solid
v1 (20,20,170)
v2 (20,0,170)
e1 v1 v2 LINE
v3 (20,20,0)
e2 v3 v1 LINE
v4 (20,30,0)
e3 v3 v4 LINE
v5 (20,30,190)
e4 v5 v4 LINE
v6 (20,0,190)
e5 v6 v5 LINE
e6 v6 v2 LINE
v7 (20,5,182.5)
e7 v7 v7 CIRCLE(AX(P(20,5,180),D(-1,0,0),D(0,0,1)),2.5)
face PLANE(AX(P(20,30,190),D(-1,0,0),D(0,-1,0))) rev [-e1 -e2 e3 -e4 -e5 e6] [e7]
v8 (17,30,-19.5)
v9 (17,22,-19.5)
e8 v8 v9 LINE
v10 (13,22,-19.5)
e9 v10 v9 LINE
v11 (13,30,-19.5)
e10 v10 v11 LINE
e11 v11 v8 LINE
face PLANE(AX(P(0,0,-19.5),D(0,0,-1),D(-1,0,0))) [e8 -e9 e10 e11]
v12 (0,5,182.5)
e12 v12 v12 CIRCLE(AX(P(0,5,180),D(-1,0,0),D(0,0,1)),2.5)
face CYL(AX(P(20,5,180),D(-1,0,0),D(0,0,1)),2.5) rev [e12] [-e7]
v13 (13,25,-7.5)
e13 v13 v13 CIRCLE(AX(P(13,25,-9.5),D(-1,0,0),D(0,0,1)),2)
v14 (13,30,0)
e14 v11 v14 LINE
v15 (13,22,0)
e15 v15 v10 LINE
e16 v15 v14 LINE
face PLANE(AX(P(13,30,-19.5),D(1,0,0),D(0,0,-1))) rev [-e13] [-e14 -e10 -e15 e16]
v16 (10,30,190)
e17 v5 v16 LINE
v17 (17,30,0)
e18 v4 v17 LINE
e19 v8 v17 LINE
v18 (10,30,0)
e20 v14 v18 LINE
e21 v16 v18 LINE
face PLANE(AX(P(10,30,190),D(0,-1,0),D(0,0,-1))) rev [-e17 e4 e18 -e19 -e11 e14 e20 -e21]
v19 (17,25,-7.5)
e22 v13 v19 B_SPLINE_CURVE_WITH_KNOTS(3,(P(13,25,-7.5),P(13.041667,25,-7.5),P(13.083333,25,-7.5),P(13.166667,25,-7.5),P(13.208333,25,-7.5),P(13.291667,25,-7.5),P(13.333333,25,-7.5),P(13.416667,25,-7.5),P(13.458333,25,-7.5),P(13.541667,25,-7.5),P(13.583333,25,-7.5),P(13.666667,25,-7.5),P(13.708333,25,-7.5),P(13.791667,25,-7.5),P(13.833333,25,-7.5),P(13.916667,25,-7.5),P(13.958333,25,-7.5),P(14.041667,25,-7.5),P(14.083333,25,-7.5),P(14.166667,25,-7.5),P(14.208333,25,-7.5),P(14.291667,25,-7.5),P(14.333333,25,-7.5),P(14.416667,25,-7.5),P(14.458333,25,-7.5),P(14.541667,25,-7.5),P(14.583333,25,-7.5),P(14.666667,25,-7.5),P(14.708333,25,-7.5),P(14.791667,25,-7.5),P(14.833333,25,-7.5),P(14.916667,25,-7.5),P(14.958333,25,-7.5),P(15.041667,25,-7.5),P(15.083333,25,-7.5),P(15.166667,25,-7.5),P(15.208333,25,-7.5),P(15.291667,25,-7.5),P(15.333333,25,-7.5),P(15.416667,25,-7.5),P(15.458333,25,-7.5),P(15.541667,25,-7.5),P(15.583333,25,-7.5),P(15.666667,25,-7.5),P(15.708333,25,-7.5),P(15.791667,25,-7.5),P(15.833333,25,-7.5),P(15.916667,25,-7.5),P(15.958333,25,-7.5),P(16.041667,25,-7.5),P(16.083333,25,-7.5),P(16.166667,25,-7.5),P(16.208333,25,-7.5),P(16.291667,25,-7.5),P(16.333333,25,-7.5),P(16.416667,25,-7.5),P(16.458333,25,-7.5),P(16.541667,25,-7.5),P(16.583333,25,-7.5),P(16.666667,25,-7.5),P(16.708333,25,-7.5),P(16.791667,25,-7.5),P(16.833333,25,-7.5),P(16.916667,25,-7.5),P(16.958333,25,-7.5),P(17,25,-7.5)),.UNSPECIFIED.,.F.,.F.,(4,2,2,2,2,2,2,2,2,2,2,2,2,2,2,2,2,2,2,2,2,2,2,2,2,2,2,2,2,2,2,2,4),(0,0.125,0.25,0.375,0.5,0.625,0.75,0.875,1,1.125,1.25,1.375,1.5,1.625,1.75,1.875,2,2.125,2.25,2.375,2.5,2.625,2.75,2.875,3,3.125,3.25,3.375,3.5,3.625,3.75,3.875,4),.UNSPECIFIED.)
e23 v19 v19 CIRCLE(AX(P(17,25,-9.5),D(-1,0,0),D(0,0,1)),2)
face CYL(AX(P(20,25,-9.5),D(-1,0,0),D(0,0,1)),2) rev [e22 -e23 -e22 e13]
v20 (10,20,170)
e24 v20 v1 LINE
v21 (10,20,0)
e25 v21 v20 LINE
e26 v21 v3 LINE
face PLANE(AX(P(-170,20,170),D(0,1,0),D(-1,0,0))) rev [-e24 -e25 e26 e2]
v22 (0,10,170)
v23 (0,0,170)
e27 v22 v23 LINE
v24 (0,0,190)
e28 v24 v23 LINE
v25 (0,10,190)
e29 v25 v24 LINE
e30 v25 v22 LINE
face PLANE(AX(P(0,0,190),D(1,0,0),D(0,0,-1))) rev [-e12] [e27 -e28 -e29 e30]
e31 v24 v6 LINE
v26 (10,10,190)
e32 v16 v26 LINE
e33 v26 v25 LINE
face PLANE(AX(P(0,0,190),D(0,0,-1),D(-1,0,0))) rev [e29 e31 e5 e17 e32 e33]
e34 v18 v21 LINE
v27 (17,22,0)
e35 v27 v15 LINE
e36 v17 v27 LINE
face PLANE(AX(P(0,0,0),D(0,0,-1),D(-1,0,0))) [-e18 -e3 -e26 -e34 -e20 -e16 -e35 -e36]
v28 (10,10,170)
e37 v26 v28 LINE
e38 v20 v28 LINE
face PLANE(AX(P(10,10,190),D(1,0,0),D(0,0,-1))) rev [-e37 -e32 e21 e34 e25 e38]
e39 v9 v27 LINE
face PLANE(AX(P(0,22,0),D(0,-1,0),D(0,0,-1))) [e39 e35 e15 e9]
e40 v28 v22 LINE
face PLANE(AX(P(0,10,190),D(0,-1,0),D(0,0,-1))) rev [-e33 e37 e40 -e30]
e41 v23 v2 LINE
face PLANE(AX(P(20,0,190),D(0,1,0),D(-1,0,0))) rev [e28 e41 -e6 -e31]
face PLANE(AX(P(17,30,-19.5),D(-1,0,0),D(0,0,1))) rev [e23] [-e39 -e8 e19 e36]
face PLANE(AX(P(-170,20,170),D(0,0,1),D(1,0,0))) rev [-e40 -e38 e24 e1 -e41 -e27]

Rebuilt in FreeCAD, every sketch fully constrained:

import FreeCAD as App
import Part
import Sketcher
from FreeCAD import Vector

doc = App.newDocument("Part")
body = doc.addObject("PartDesign::Body", "Body")

sketch1 = body.newObject("Sketcher::SketchObject", "Sketch")
sketch1.AttachmentSupport = (doc.getObject("XY_Plane"), [""])
sketch1.MapMode = "FlatFace"
sketch1.addGeometry([
    Part.LineSegment(Vector(0, 10, 0), Vector(0, 0, 0)),
    Part.LineSegment(Vector(0, 0, 0), Vector(20, 0, 0)),
    Part.LineSegment(Vector(20, 0, 0), Vector(20, 30, 0)),
    Part.LineSegment(Vector(20, 30, 0), Vector(10, 30, 0)),
    Part.LineSegment(Vector(10, 30, 0), Vector(10, 10, 0)),
    Part.LineSegment(Vector(10, 10, 0), Vector(0, 10, 0)),
], False)
sketch1.addConstraint([
    Sketcher.Constraint("Coincident", 0, 2, 1, 1),
    Sketcher.Constraint("Coincident", 1, 2, 2, 1),
    Sketcher.Constraint("Coincident", 2, 2, 3, 1),
    Sketcher.Constraint("Coincident", 3, 2, 4, 1),
    Sketcher.Constraint("Coincident", 4, 2, 5, 1),
    Sketcher.Constraint("Coincident", 5, 2, 0, 1),
    Sketcher.Constraint("Vertical", 0),
    Sketcher.Constraint("Horizontal", 1),
    Sketcher.Constraint("Vertical", 2),
    Sketcher.Constraint("Horizontal", 3),
    Sketcher.Constraint("Vertical", 4),
    Sketcher.Constraint("Horizontal", 5),
    Sketcher.Constraint("Coincident", 0, 2, -1, 1),
    Sketcher.Constraint("Equal", 3, 5),
    Sketcher.Constraint("Equal", 5, 0),
    Sketcher.Constraint("Equal", 1, 4),
    Sketcher.Constraint("DistanceX", 1, 1, 1, 2, 20.0),
])
pad1 = body.newObject("PartDesign::Pad", "Pad")
pad1.Profile = sketch1
pad1.Length = 190

sketch2 = body.newObject("Sketcher::SketchObject", "Sketch001")
sketch2.AttachmentSupport = (doc.getObject("YZ_Plane"), [""])
sketch2.MapMode = "FlatFace"
sketch2.AttachmentOffset = App.Placement(Vector(0, 0, 20), App.Rotation())
sketch2.addGeometry([
    Part.LineSegment(Vector(20, 170, 0), Vector(0, 170, 0)),
    Part.LineSegment(Vector(0, 170, 0), Vector(0, 0, 0)),
    Part.LineSegment(Vector(0, 0, 0), Vector(20, 0, 0)),
    Part.LineSegment(Vector(20, 0, 0), Vector(20, 170, 0)),
], False)
sketch2.addConstraint([
    Sketcher.Constraint("Coincident", 0, 2, 1, 1),
    Sketcher.Constraint("Coincident", 1, 2, 2, 1),
    Sketcher.Constraint("Coincident", 2, 2, 3, 1),
    Sketcher.Constraint("Coincident", 3, 2, 0, 1),
    Sketcher.Constraint("Horizontal", 0),
    Sketcher.Constraint("Vertical", 1),
    Sketcher.Constraint("Horizontal", 2),
    Sketcher.Constraint("Vertical", 3),
    Sketcher.Constraint("Coincident", 1, 2, -1, 1),
    Sketcher.Constraint("DistanceX", 0, 2, 0, 1, 20.0),
    Sketcher.Constraint("DistanceY", 1, 2, 1, 1, 170.0),
])
pocket1 = body.newObject("PartDesign::Pocket", "Pocket")
pocket1.Profile = sketch2
pocket1.Length = 190

sketch3 = body.newObject("Sketcher::SketchObject", "Sketch002")
sketch3.AttachmentSupport = (doc.getObject("XY_Plane"), [""])
sketch3.MapMode = "FlatFace"
sketch3.addGeometry([
    Part.LineSegment(Vector(17, 30, 0), Vector(17, 25, 0)),
    Part.LineSegment(Vector(17, 25, 0), Vector(13, 25, 0)),
    Part.LineSegment(Vector(13, 25, 0), Vector(13, 30, 0)),
    Part.LineSegment(Vector(13, 30, 0), Vector(17, 30, 0)),
], False)
sketch3.addConstraint([
    Sketcher.Constraint("Coincident", 0, 2, 1, 1),
    Sketcher.Constraint("Coincident", 1, 2, 2, 1),
    Sketcher.Constraint("Coincident", 2, 2, 3, 1),
    Sketcher.Constraint("Coincident", 3, 2, 0, 1),
    Sketcher.Constraint("Vertical", 0),
    Sketcher.Constraint("Horizontal", 1),
    Sketcher.Constraint("Vertical", 2),
    Sketcher.Constraint("Horizontal", 3),
    Sketcher.Constraint("DistanceX", 1, 2, 1, 1, 4.0),
    Sketcher.Constraint("DistanceY", 0, 2, 0, 1, 5.0),
    Sketcher.Constraint("DistanceX", -1, 1, 0, 2, 17.0),
    Sketcher.Constraint("DistanceY", -1, 1, 0, 2, 25.0),
])
pad2 = body.newObject("PartDesign::Pad", "Pad001")
pad2.Profile = sketch3
pad2.Length = 19.5
pad2.Reversed = True

sketch4 = body.newObject("Sketcher::SketchObject", "Sketch003")
sketch4.AttachmentSupport = (doc.getObject("YZ_Plane"), [""])
sketch4.MapMode = "FlatFace"
sketch4.addGeometry(Part.Circle(Vector(5, 180, 0), Vector(0, 0, 1), 2.8), False)
sketch4.addConstraint([
    Sketcher.Constraint("Diameter", 0, 5.5),
    Sketcher.Constraint("DistanceX", -1, 1, 0, 3, 5.0),
    Sketcher.Constraint("DistanceY", -1, 1, 0, 3, 180.0),
])
pocket2 = body.newObject("PartDesign::Pocket", "Pocket001")
pocket2.Profile = sketch4
pocket2.Length = 10
pocket2.Reversed = True

sketch5 = body.newObject("Sketcher::SketchObject", "Sketch004")
sketch5.AttachmentSupport = (doc.getObject("XZ_Plane"), [""])
sketch5.MapMode = "FlatFace"
sketch5.AttachmentOffset = App.Placement(Vector(0, 0, -25), App.Rotation())
sketch5.addGeometry([
    Part.LineSegment(Vector(13, 0, 0), Vector(13, -19.5, 0)),
    Part.LineSegment(Vector(13, -19.5, 0), Vector(17, -19.5, 0)),
    Part.LineSegment(Vector(17, -19.5, 0), Vector(17, 0, 0)),
    Part.LineSegment(Vector(17, 0, 0), Vector(13, 0, 0)),
], False)
sketch5.addConstraint([
    Sketcher.Constraint("Coincident", 0, 2, 1, 1),
    Sketcher.Constraint("Coincident", 1, 2, 2, 1),
    Sketcher.Constraint("Coincident", 2, 2, 3, 1),
    Sketcher.Constraint("Coincident", 3, 2, 0, 1),
    Sketcher.Constraint("Vertical", 0),
    Sketcher.Constraint("Horizontal", 1),
    Sketcher.Constraint("Vertical", 2),
    Sketcher.Constraint("Horizontal", 3),
    Sketcher.Constraint("PointOnObject", 2, 2, -1),
    Sketcher.Constraint("DistanceX", 1, 1, 1, 2, 4.0),
    Sketcher.Constraint("DistanceY", 0, 2, 0, 1, 19.5),
    Sketcher.Constraint("DistanceX", -1, 1, 0, 2, 13.0),
])
pad3 = body.newObject("PartDesign::Pad", "Pad002")
pad3.Profile = sketch5
pad3.Length = 3

sketch6 = body.newObject("Sketcher::SketchObject", "Sketch005")
sketch6.AttachmentSupport = (doc.getObject("YZ_Plane"), [""])
sketch6.MapMode = "FlatFace"
sketch6.addGeometry([
    Part.Circle(Vector(5, 180, 0), Vector(0, 0, 1), 2.8),
    Part.Circle(Vector(5, 180, 0), Vector(0, 0, 1), 2.5),
], False)
sketch6.addConstraint([
    Sketcher.Constraint("Coincident", 1, 3, 0, 3),
    Sketcher.Constraint("Diameter", 1, 5.0),
    Sketcher.Constraint("Diameter", 0, 5.5),
    Sketcher.Constraint("DistanceX", -1, 1, 0, 3, 5.0),
    Sketcher.Constraint("DistanceY", -1, 1, 0, 3, 180.0),
])
pad4 = body.newObject("PartDesign::Pad", "Pad003")
pad4.Profile = sketch6
pad4.Type = "UpToFirst"

sketch7 = body.newObject("Sketcher::SketchObject", "Sketch006")
sketch7.AttachmentSupport = (doc.getObject("YZ_Plane"), [""])
sketch7.MapMode = "FlatFace"
sketch7.addGeometry(Part.Circle(Vector(5, 180, 0), Vector(0, 0, 1), 2.5), False)
sketch7.addConstraint([
    Sketcher.Constraint("Diameter", 0, 5.0),
    Sketcher.Constraint("DistanceX", -1, 1, 0, 3, 5.0),
    Sketcher.Constraint("DistanceY", -1, 1, 0, 3, 180.0),
])
pocket3 = body.newObject("PartDesign::Pocket", "Pocket002")
pocket3.Profile = sketch7
pocket3.Type = "ThroughAll"
pocket3.Reversed = True

sketch8 = body.newObject("Sketcher::SketchObject", "Sketch007")
sketch8.AttachmentSupport = (doc.getObject("YZ_Plane"), [""])
sketch8.MapMode = "FlatFace"
sketch8.AttachmentOffset = App.Placement(Vector(0, 0, 13), App.Rotation())
sketch8.addGeometry(Part.Circle(Vector(25, -9.5, 0), Vector(0, 0, 1), 2), False)
sketch8.addConstraint([
    Sketcher.Constraint("Diameter", 0, 4.0),
    Sketcher.Constraint("DistanceX", -1, 1, 0, 3, 25.0),
    Sketcher.Constraint("DistanceY", 0, 3, -1, 1, 9.5),
])
pocket4 = body.newObject("PartDesign::Pocket", "Pocket003")
pocket4.Profile = sketch8
pocket4.Type = "ThroughAll"
pocket4.Reversed = True

doc.recompute()
